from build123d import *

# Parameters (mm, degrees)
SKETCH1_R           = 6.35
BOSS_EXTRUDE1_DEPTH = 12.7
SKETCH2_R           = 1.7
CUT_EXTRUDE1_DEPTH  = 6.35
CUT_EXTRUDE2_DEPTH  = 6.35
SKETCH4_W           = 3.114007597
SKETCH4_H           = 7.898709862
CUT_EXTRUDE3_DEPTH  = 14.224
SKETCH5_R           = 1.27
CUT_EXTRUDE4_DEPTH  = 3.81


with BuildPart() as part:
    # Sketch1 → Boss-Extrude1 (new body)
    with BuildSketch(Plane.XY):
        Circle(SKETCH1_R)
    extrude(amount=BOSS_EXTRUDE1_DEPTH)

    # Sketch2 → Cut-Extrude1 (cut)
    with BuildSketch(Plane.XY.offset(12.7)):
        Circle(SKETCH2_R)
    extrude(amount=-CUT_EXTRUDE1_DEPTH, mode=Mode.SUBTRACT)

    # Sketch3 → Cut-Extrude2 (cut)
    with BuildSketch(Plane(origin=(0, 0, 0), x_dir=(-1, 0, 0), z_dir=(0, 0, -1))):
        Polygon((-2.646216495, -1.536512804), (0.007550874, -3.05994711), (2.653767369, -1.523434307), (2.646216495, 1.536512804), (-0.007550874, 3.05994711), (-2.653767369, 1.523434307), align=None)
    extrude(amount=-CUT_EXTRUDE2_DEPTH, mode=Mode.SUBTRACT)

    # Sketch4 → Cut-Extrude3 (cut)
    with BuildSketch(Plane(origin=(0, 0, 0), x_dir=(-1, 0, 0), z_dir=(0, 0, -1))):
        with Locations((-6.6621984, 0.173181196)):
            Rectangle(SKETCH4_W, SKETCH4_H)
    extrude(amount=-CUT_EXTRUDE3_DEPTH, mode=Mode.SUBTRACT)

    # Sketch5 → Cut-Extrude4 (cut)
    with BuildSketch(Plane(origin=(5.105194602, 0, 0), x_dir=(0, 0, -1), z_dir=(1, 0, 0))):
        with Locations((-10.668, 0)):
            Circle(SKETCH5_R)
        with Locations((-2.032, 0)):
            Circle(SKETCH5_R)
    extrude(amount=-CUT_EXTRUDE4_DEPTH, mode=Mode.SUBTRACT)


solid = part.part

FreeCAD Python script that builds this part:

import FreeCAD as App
import Part
import Sketcher
from FreeCAD import Vector
Q = App.Units.Quantity


def add_polygon(sketch, points):
    """Adds a closed chain of lines whose ends are joined by coincident constraints."""
    first, n = sketch.GeometryCount, len(points)
    for a, b in zip(points, points[1:] + points[:1]):
        sketch.addGeometry(Part.LineSegment(App.Vector(*a, 0), App.Vector(*b, 0)), False)
    for i in range(n):
        sketch.addConstraint(Sketcher.Constraint("Coincident", first + i, 2, first + (i + 1) % n, 1))

doc = App.newDocument("Part")
body = doc.addObject("PartDesign::Body", "Body")

# Sketch on XY plane
sketch1 = body.newObject("Sketcher::SketchObject", "Sketch")
sketch1.AttachmentSupport = (doc.getObject("XY_Plane"), [""])
sketch1.MapMode = "FlatFace"
sketch1.addGeometry(Part.Circle(Vector(0, 0, 0), Vector(0, 0, 1), 6.35), False)
sketch1.addConstraint([
    Sketcher.Constraint("Coincident", 0, 3, -1, 1),
    Sketcher.Constraint("Diameter", 0, Q("0.5 in")),
])
pad1 = body.newObject("PartDesign::Pad", "Pad")
pad1.Profile = sketch1
pad1.Length = Q("0.5 in")

# Sketch on XY plane
sketch2 = body.newObject("Sketcher::SketchObject", "Sketch001")
sketch2.AttachmentSupport = (doc.getObject("XY_Plane"), [""])
sketch2.MapMode = "FlatFace"
sketch2.AttachmentOffset = App.Placement(Vector(0, 0, 0.5 * 25.4), App.Rotation())
sketch2.addGeometry(Part.Circle(Vector(0, 0, 0), Vector(0, 0, 1), 1.7), False)
sketch2.addConstraint([
    Sketcher.Constraint("Coincident", 0, 3, -1, 1),
    Sketcher.Constraint("Diameter", 0, 3.4),
])
pocket1 = body.newObject("PartDesign::Pocket", "Pocket")
pocket1.Profile = sketch2
pocket1.Length = Q("0.25 in")

# Sketch on XY plane
sketch3 = body.newObject("Sketcher::SketchObject", "Sketch002")
sketch3.AttachmentSupport = (doc.getObject("XY_Plane"), [""])
sketch3.MapMode = "FlatFace"
add_polygon(sketch3, [(2.646216, -1.536513), (-0.007551, -3.059947), (-2.653767, -1.523434), (-2.646216, 1.536513), (0.007551, 3.059947), (2.653767, 1.523434)])  # lines 0-5
sketch3.addConstraint([
    Sketcher.Constraint("Symmetric", 0, 2, 3, 2, -1, 1),
    Sketcher.Constraint("Symmetric", 1, 2, 4, 2, -1, 1),
    Sketcher.Constraint("Symmetric", 2, 2, 5, 2, -1, 1),
    Sketcher.Constraint("Equal", 0, 1),
    Sketcher.Constraint("Equal", 1, 2),
    Sketcher.Constraint("DistanceX", 0, 2, 3, 2, 0.015102),
    Sketcher.Constraint("DistanceX", 1, 2, 2, 2, 0.007551),
    Sketcher.Constraint("DistanceY", 0, 2, 2, 2, 4.59646),
    Sketcher.Constraint("DistanceX", 1, 2, 3, 2, 2.661318),
])
pocket2 = body.newObject("PartDesign::Pocket", "Pocket001")
pocket2.Profile = sketch3
pocket2.Length = Q("0.25 in")
pocket2.Reversed = True

# Sketch on XY plane
sketch4 = body.newObject("Sketcher::SketchObject", "Sketch003")
sketch4.AttachmentSupport = (doc.getObject("XY_Plane"), [""])
sketch4.MapMode = "FlatFace"
add_polygon(sketch4, [(8.219202, 4.122536), (8.219202, -3.776174), (5.105195, -3.776174), (5.105195, 4.122536)])  # lines 0-3
sketch4.addConstraint([
    Sketcher.Constraint("Vertical", 0),
    Sketcher.Constraint("Horizontal", 1),
    Sketcher.Constraint("Vertical", 2),
    Sketcher.Constraint("Horizontal", 3),
    Sketcher.Constraint("DistanceY", 0, 2, 0, 1, 7.89871),
    Sketcher.Constraint("DistanceX", 1, 2, 1, 1, 3.114008),
    Sketcher.Constraint("DistanceX", -1, 1, 0, 2, 8.219202),
    Sketcher.Constraint("DistanceY", 0, 2, -1, 1, 3.776174),
])
pocket3 = body.newObject("PartDesign::Pocket", "Pocket002")
pocket3.Profile = sketch4
pocket3.Length = Q("0.56 in")
pocket3.Reversed = True

# Sketch on YZ plane
sketch5 = body.newObject("Sketcher::SketchObject", "Sketch004")
sketch5.AttachmentSupport = (doc.getObject("YZ_Plane"), [""])
sketch5.MapMode = "FlatFace"
sketch5.AttachmentOffset = App.Placement(Vector(0, 0, 5.105195), App.Rotation())
sketch5.addGeometry([
    Part.Circle(Vector(0, 10.668, 0), Vector(0, 0, 1), 1.27),
    Part.Circle(Vector(0, 2.032, 0), Vector(0, 0, 1), 1.27),
], False)
sketch5.addConstraint([
    Sketcher.Constraint("Equal", 0, 1),
    Sketcher.Constraint("PointOnObject", 0, 3, -2),
    Sketcher.Constraint("PointOnObject", 1, 3, -2),
    Sketcher.Constraint("Diameter", 0, Q("0.1 in")),
    Sketcher.Constraint("DistanceY", -1, 1, 0, 3, Q("0.42 in")),
    Sketcher.Constraint("DistanceY", -1, 1, 1, 3, Q("0.08 in")),
])
pocket4 = body.newObject("PartDesign::Pocket", "Pocket003")
pocket4.Profile = sketch5
pocket4.Length = Q("0.15 in")

doc.recompute()
